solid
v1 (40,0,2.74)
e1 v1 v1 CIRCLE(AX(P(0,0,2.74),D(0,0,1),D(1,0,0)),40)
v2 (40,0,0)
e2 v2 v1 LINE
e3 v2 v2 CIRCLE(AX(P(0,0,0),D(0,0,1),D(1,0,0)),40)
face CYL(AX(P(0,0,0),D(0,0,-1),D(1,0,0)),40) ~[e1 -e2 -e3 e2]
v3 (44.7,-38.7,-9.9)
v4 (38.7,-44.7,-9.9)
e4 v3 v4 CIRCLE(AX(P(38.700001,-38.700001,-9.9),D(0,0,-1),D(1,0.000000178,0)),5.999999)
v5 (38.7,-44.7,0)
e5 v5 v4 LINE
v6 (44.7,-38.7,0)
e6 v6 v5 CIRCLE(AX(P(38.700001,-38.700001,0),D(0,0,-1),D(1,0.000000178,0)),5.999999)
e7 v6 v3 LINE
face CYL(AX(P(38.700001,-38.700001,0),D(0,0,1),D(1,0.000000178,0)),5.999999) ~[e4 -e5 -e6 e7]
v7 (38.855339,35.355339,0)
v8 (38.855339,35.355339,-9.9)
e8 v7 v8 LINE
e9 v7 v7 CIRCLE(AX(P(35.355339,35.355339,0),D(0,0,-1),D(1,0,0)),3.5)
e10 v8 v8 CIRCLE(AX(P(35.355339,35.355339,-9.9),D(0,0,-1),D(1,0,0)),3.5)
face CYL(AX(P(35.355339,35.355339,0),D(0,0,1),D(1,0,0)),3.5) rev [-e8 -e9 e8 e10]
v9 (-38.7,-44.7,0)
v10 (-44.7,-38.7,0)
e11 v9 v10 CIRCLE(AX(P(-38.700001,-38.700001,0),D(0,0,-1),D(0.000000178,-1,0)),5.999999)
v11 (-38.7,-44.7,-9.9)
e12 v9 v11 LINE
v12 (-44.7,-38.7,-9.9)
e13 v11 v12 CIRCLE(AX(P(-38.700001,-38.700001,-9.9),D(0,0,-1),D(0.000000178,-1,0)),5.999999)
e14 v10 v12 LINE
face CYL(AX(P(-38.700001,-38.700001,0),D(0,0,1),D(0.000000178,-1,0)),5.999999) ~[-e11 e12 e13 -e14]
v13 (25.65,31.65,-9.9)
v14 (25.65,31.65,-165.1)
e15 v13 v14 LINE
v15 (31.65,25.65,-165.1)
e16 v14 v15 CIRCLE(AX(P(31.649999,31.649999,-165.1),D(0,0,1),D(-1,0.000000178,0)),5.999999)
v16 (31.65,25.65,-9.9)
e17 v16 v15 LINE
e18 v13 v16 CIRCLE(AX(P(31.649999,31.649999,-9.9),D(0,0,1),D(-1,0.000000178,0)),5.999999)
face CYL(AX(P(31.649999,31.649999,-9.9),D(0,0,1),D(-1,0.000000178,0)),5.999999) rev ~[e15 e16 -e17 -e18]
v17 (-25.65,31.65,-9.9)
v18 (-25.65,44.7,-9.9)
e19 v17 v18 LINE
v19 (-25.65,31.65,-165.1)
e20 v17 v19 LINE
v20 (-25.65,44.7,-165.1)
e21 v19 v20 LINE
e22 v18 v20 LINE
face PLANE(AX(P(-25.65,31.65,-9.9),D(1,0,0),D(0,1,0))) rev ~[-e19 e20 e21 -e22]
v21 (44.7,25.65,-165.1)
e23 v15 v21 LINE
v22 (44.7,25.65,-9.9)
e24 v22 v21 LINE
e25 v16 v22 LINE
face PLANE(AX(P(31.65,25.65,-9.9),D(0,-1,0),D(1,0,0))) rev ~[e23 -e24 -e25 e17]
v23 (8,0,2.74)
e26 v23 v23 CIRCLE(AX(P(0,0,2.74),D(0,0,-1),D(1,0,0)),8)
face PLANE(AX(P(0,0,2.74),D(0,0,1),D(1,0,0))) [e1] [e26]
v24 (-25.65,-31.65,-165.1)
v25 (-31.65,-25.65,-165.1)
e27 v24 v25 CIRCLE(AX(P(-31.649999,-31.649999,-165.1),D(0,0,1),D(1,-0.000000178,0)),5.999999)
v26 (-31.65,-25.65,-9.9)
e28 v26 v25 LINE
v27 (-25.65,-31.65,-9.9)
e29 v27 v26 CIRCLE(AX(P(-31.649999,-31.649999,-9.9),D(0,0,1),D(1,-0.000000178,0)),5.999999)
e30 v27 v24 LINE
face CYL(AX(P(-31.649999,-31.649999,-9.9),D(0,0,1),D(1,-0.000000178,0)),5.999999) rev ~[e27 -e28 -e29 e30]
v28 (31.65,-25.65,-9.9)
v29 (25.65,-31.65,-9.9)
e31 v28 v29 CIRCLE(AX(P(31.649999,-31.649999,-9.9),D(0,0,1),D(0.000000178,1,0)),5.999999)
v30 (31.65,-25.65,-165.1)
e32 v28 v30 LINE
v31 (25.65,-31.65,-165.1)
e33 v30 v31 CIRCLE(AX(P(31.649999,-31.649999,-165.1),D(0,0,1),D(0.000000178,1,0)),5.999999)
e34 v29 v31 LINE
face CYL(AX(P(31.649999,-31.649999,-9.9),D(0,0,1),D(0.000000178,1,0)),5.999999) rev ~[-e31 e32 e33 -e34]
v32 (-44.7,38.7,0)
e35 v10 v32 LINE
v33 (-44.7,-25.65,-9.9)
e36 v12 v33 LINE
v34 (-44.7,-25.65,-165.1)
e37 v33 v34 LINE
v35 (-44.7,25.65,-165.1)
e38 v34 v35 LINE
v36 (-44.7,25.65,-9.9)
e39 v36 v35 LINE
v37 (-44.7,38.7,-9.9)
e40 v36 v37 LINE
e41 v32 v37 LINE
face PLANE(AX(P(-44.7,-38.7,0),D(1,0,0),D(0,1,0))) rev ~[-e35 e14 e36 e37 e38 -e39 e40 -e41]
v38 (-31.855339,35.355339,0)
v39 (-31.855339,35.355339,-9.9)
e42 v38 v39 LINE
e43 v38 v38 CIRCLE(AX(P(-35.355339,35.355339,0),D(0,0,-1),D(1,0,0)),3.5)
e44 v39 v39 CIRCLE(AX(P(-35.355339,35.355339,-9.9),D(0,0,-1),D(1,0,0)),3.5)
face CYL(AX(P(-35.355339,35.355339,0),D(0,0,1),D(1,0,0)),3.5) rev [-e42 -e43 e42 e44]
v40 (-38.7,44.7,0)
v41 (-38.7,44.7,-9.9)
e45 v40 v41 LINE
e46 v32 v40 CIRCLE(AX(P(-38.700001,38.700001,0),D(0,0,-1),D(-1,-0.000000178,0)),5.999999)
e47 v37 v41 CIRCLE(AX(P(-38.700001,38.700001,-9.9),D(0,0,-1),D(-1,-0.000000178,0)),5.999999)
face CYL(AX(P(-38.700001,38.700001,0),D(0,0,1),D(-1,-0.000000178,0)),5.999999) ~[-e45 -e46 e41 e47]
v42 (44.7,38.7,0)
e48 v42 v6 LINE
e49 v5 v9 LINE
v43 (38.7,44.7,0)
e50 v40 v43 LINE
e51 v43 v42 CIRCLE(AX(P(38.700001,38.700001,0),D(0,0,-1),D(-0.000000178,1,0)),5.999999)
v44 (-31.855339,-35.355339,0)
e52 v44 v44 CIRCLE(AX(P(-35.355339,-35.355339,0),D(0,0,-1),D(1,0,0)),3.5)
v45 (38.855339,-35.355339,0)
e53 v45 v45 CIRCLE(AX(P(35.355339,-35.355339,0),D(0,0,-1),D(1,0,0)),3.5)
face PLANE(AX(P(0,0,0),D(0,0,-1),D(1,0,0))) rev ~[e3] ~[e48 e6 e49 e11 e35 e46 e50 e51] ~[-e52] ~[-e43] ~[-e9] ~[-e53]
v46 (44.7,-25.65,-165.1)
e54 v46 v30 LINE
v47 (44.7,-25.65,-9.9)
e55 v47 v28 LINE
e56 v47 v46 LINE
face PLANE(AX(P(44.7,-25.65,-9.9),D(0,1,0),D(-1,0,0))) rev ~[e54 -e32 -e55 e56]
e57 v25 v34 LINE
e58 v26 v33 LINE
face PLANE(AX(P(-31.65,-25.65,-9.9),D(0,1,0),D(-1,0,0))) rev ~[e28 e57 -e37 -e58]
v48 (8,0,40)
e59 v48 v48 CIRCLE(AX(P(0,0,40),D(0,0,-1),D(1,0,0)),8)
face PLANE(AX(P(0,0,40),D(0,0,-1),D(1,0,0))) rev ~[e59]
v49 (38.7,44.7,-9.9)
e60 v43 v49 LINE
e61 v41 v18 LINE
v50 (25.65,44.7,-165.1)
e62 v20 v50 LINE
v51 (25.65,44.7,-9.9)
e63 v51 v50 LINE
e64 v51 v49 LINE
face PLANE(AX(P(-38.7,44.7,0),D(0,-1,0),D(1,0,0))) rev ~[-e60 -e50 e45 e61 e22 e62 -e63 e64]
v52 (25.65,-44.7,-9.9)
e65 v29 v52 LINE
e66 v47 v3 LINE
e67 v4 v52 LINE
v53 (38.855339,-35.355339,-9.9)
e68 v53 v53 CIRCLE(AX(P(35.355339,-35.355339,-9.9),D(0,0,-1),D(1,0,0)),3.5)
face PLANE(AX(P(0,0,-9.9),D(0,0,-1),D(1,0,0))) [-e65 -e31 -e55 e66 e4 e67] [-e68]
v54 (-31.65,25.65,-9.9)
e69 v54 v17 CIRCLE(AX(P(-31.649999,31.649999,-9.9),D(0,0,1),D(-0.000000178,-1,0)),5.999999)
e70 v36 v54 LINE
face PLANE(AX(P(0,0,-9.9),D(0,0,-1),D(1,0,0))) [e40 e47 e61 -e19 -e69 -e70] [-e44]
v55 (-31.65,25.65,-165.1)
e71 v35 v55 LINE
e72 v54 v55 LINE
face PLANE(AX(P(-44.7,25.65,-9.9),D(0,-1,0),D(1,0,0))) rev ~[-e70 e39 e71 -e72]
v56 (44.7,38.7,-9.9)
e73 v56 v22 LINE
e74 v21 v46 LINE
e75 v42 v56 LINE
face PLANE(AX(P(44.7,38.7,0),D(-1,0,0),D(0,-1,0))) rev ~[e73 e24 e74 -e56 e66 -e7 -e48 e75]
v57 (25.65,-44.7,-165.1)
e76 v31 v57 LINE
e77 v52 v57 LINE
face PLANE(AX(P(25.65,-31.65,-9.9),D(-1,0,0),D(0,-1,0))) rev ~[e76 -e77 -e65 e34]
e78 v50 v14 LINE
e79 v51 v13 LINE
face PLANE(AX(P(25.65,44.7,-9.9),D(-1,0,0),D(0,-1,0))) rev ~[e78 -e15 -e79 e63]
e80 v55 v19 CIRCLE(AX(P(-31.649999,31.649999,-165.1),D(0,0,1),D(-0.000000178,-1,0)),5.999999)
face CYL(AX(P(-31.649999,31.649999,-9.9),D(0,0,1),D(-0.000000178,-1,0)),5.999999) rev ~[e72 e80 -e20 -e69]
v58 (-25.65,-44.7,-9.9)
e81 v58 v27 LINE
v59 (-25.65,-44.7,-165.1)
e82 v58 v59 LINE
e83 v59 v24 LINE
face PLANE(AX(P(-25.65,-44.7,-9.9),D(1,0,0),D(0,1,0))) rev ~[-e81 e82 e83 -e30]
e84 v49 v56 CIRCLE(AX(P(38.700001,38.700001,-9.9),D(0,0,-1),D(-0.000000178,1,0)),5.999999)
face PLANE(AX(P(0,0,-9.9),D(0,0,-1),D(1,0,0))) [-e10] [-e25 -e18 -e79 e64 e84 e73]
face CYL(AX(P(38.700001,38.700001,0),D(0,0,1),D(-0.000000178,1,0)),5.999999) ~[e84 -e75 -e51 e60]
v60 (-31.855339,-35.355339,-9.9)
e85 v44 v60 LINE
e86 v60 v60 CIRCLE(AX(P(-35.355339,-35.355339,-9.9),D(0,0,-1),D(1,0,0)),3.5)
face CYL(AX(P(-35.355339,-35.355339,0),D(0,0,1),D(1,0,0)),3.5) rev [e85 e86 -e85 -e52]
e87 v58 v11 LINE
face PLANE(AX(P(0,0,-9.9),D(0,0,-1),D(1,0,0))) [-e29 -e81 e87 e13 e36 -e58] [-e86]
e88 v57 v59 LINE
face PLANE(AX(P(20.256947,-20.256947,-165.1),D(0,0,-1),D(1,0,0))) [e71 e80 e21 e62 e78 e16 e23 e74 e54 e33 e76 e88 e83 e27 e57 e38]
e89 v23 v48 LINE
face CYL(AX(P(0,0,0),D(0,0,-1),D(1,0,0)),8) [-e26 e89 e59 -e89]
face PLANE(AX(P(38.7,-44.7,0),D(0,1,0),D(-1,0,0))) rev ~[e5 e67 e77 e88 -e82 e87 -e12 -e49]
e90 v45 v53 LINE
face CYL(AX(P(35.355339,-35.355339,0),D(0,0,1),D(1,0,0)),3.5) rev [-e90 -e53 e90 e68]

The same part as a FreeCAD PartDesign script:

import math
import FreeCAD as App
import Part
import Sketcher

V = App.Vector
Q = App.Units.Quantity

doc = App.newDocument("Part")
body = doc.addObject("PartDesign::Body", "Body")

# Sketch on XY plane
sketch1 = body.newObject("Sketcher::SketchObject", "Sketch")
sketch1.AttachmentSupport = (doc.getObject("XY_Plane"), [""])
sketch1.MapMode = "FlatFace"
sketch1.addGeometry(Part.Circle(V(0, 0, 0), V(0, 0, 1), 40), False)
sketch1.addConstraint([
    Sketcher.Constraint("Coincident", 0, 3, -1, 1),
    Sketcher.Constraint("Diameter", 0, Q("80 mm")),
])
pad1 = body.newObject("PartDesign::Pad", "Pad")
pad1.Profile = sketch1
pad1.Length = 2.74

# Sketch on XY plane
sketch2 = body.newObject("Sketcher::SketchObject", "Sketch001")
sketch2.AttachmentSupport = (doc.getObject("XY_Plane"), [""])
sketch2.MapMode = "FlatFace"
sketch2.addGeometry(Part.Circle(V(0, 0, 0), V(0, 0, 1), 8), False)
sketch2.addConstraint([
    Sketcher.Constraint("Coincident", 0, 3, -1, 1),
    Sketcher.Constraint("Diameter", 0, Q("16 mm")),
])
pad2 = body.newObject("PartDesign::Pad", "Pad001")
pad2.Profile = sketch2
pad2.Length = 40

# Sketch on XY plane
sketch3 = body.newObject("Sketcher::SketchObject", "Sketch002")
sketch3.AttachmentSupport = (doc.getObject("XY_Plane"), [""])
sketch3.MapMode = "FlatFace"
sketch3.addGeometry([
    Part.LineSegment(V(-38.7, 44.7, 0), V(38.7, 44.7, 0)),  # 0
    Part.ArcOfCircle(Part.Circle(V(38.700001, 38.700001, 0), V(0, 0, 1), 5.999999), math.radians(-0.00001), math.radians(90.00001)),  # 1
    Part.LineSegment(V(44.7, 38.7, 0), V(44.7, -38.7, 0)),  # 2
    Part.ArcOfCircle(Part.Circle(V(38.700001, -38.700001, 0), V(0, 0, 1), 5.999999), math.radians(-90.00001), math.radians(0.00001)),  # 3
    Part.LineSegment(V(38.7, -44.7, 0), V(-38.7, -44.7, 0)),  # 4
    Part.ArcOfCircle(Part.Circle(V(-38.700001, -38.700001, 0), V(0, 0, 1), 5.999999), math.radians(179.99999), math.radians(270.00001)),  # 5
    Part.LineSegment(V(-44.7, -38.7, 0), V(-44.7, 38.7, 0)),  # 6
    Part.ArcOfCircle(Part.Circle(V(-38.700001, 38.700001, 0), V(0, 0, 1), 5.999999), math.radians(89.99999), math.radians(180.00001)),  # 7
    Part.Circle(V(-35.355339, 35.355339, 0), V(0, 0, 1), 3.5),  # 8
    Part.Circle(V(35.355339, 35.355339, 0), V(0, 0, 1), 3.5),  # 9
    Part.Circle(V(-35.355339, -35.355339, 0), V(0, 0, 1), 3.5),  # 10
    Part.Circle(V(35.355339, -35.355339, 0), V(0, 0, 1), 3.5),  # 11
], False)
sketch3.addConstraint([
    Sketcher.Constraint("Tangent", 0, 2, 1, 2),
    Sketcher.Constraint("Tangent", 1, 1, 2, 1),
    Sketcher.Constraint("Tangent", 2, 2, 3, 2),
    Sketcher.Constraint("Tangent", 3, 1, 4, 1),
    Sketcher.Constraint("Tangent", 4, 2, 5, 2),
    Sketcher.Constraint("Tangent", 5, 1, 6, 1),
    Sketcher.Constraint("Tangent", 6, 2, 7, 2),
    Sketcher.Constraint("Tangent", 7, 1, 0, 1),
    Sketcher.Constraint("Horizontal", 0),
    Sketcher.Constraint("Vertical", 2),
    Sketcher.Constraint("Horizontal", 4),
    Sketcher.Constraint("Vertical", 6),
    Sketcher.Constraint("Equal", 1, 3),
    Sketcher.Constraint("Equal", 3, 5),
    Sketcher.Constraint("Equal", 5, 7),
    Sketcher.Constraint("Equal", 8, 9),
    Sketcher.Constraint("Equal", 9, 10),
    Sketcher.Constraint("Equal", 10, 11),
    Sketcher.Constraint("Symmetric", 1, 3, 5, 3, -1, 1),
    Sketcher.Constraint("Symmetric", 9, 3, 10, 3, -1, 1),
    Sketcher.Constraint("Symmetric", 8, 3, 11, 3, -1, 1),
    Sketcher.Constraint("Symmetric", 8, 3, 9, 3, -2),
    Sketcher.Constraint("Equal", 4, 2),
    Sketcher.Constraint("Diameter", 8, Q("7 mm")),
    Sketcher.Constraint("Radius", 1, Q("5.999999 mm")),
    Sketcher.Constraint("DistanceX", 0, 1, 0, 2, Q("77.4 mm")),
    Sketcher.Constraint("DistanceX", 8, 3, -1, 1, Q("35.355339 mm")),
    Sketcher.Constraint("DistanceY", -1, 1, 8, 3, Q("35.355339 mm")),
])
pad3 = body.newObject("PartDesign::Pad", "Pad002")
pad3.Profile = sketch3
pad3.Length = 9.9
pad3.Reversed = True

# Sketch on XY plane
sketch4 = body.newObject("Sketcher::SketchObject", "Sketch003")
sketch4.AttachmentSupport = (doc.getObject("XY_Plane"), [""])
sketch4.MapMode = "FlatFace"
sketch4.AttachmentOffset = App.Placement(V(0, 0, -9.9), App.Rotation())
sketch4.addGeometry([
    Part.LineSegment(V(44.7, -25.65, 0), V(31.65, -25.65, 0)),  # 0
    Part.ArcOfCircle(Part.Circle(V(31.649999, -31.649999, 0), V(0, 0, 1), 5.999999), math.radians(89.99999), math.radians(180.00001)),  # 1
    Part.LineSegment(V(25.65, -31.65, 0), V(25.65, -44.7, 0)),  # 2
    Part.LineSegment(V(25.65, -44.7, 0), V(-25.65, -44.7, 0)),  # 3
    Part.LineSegment(V(-25.65, -44.7, 0), V(-25.65, -31.65, 0)),  # 4
    Part.ArcOfCircle(Part.Circle(V(-31.649999, -31.649999, 0), V(0, 0, 1), 5.999999), math.radians(-0.00001), math.radians(90.00001)),  # 5
    Part.LineSegment(V(-31.65, -25.65, 0), V(-44.7, -25.65, 0)),  # 6
    Part.LineSegment(V(-44.7, -25.65, 0), V(-44.7, 25.65, 0)),  # 7
    Part.LineSegment(V(-44.7, 25.65, 0), V(-31.65, 25.65, 0)),  # 8
    Part.ArcOfCircle(Part.Circle(V(-31.649999, 31.649999, 0), V(0, 0, 1), 5.999999), math.radians(-90.00001), math.radians(0.00001)),  # 9
    Part.LineSegment(V(-25.65, 31.65, 0), V(-25.65, 44.7, 0)),  # 10
    Part.LineSegment(V(-25.65, 44.7, 0), V(25.65, 44.7, 0)),  # 11
    Part.LineSegment(V(25.65, 44.7, 0), V(25.65, 31.65, 0)),  # 12
    Part.ArcOfCircle(Part.Circle(V(31.649999, 31.649999, 0), V(0, 0, 1), 5.999999), math.radians(179.99999), math.radians(270.00001)),  # 13
    Part.LineSegment(V(31.65, 25.65, 0), V(44.7, 25.65, 0)),  # 14
    Part.LineSegment(V(44.7, 25.65, 0), V(44.7, -25.65, 0)),  # 15
], False)
sketch4.addConstraint([
    Sketcher.Constraint("Tangent", 0, 2, 1, 1),
    Sketcher.Constraint("Tangent", 1, 2, 2, 1),
    Sketcher.Constraint("Coincident", 2, 2, 3, 1),
    Sketcher.Constraint("Coincident", 3, 2, 4, 1),
    Sketcher.Constraint("Tangent", 4, 2, 5, 1),
    Sketcher.Constraint("Tangent", 5, 2, 6, 1),
    Sketcher.Constraint("Coincident", 6, 2, 7, 1),
    Sketcher.Constraint("Coincident", 7, 2, 8, 1),
    Sketcher.Constraint("Tangent", 8, 2, 9, 1),
    Sketcher.Constraint("Tangent", 9, 2, 10, 1),
    Sketcher.Constraint("Coincident", 10, 2, 11, 1),
    Sketcher.Constraint("Coincident", 11, 2, 12, 1),
    Sketcher.Constraint("Tangent", 12, 2, 13, 1),
    Sketcher.Constraint("Tangent", 13, 2, 14, 1),
    Sketcher.Constraint("Coincident", 14, 2, 15, 1),
    Sketcher.Constraint("Coincident", 15, 2, 0, 1),
    Sketcher.Constraint("Horizontal", 0),
    Sketcher.Constraint("Vertical", 2),
    Sketcher.Constraint("Horizontal", 3),
    Sketcher.Constraint("Vertical", 4),
    Sketcher.Constraint("Horizontal", 6),
    Sketcher.Constraint("Vertical", 7),
    Sketcher.Constraint("Horizontal", 8),
    Sketcher.Constraint("Vertical", 10),
    Sketcher.Constraint("Horizontal", 11),
    Sketcher.Constraint("Vertical", 12),
    Sketcher.Constraint("Horizontal", 14),
    Sketcher.Constraint("Vertical", 15),
    Sketcher.Constraint("Equal", 1, 5),
    Sketcher.Constraint("Equal", 5, 9),
    Sketcher.Constraint("Equal", 9, 13),
    Sketcher.Constraint("Symmetric", 1, 3, 9, 3, -1, 1),
    Sketcher.Constraint("Symmetric", 5, 3, 13, 3, -1, 1),
    Sketcher.Constraint("Symmetric", 1, 3, 5, 3, -2),
    Sketcher.Constraint("Equal", 0, 6),
    Sketcher.Constraint("Equal", 14, 2),
    Sketcher.Constraint("Equal", 11, 7),
    Sketcher.Constraint("Equal", 4, 10),
    Sketcher.Constraint("Radius", 1, Q("5.999999 mm")),
    Sketcher.Constraint("DistanceX", 3, 2, 3, 1, Q("51.3 mm")),
    Sketcher.Constraint("DistanceX", 0, 2, 0, 1, Q("13.05 mm")),
])
pad4 = body.newObject("PartDesign::Pad", "Pad003")
pad4.Profile = sketch4
pad4.Length = 155.2
pad4.Reversed = True

doc.recompute()
